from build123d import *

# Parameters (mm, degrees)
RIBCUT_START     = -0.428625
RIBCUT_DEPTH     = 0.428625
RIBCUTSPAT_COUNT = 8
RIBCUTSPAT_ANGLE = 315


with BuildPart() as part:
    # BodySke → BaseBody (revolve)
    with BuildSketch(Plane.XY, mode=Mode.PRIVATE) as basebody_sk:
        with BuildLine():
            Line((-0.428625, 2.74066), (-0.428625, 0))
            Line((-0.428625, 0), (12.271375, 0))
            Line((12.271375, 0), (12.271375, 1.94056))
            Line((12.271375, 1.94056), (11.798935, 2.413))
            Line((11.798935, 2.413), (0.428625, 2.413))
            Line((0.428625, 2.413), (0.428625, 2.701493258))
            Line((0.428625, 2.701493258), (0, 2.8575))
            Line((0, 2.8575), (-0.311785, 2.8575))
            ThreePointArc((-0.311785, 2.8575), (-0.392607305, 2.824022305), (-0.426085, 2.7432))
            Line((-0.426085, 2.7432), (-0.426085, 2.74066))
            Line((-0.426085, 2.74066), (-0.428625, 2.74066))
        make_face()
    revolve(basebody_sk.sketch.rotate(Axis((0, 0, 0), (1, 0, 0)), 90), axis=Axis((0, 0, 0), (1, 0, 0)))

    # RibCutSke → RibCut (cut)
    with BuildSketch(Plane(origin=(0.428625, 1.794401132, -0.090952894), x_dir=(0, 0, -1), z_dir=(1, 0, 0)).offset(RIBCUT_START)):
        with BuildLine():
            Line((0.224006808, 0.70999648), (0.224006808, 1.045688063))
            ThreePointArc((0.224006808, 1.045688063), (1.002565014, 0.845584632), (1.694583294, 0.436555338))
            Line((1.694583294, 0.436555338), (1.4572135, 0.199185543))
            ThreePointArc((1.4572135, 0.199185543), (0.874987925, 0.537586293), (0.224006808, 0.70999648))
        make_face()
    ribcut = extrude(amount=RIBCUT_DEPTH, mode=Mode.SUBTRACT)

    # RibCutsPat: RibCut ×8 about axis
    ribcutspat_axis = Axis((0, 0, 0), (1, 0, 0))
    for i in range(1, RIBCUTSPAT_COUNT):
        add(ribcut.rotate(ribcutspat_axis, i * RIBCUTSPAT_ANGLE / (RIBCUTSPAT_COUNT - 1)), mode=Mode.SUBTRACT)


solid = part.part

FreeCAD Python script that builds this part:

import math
import FreeCAD as App
import Part
import Sketcher
from FreeCAD import Vector
Q = App.Units.Quantity

doc = App.newDocument("Part")
body = doc.addObject("PartDesign::Body", "Body")

# Sketch on XY plane
sketch1 = body.newObject("Sketcher::SketchObject", "Sketch")
sketch1.AttachmentSupport = (doc.getObject("XY_Plane"), [""])
sketch1.MapMode = "FlatFace"
sketch1.addGeometry(Part.LineSegment(Vector(-0.428625, 2.74066, 0), Vector(-0.428625, 0, 0)), False)
sketch1.addGeometry(Part.LineSegment(Vector(-0.428625, 0, 0), Vector(12.271375, 0, 0)), False)
sketch1.addGeometry(Part.LineSegment(Vector(12.271375, 0, 0), Vector(12.271375, 1.94056, 0)), False)
sketch1.addGeometry(Part.LineSegment(Vector(12.271375, 1.94056, 0), Vector(11.798935, 2.413, 0)), False)
sketch1.addGeometry(Part.LineSegment(Vector(11.798935, 2.413, 0), Vector(0.428625, 2.413, 0)), False)
sketch1.addGeometry(Part.LineSegment(Vector(0.428625, 2.413, 0), Vector(0.428625, 2.701493, 0)), False)
sketch1.addGeometry(Part.LineSegment(Vector(0.428625, 2.701493, 0), Vector(0, 2.8575, 0)), False)
sketch1.addGeometry(Part.LineSegment(Vector(0, 2.8575, 0), Vector(-0.311785, 2.8575, 0)), False)
sketch1.addGeometry(Part.ArcOfCircle(Part.Circle(Vector(-0.311785, 2.7432, 0), Vector(0, 0, 1), 0.1143), math.radians(90), math.radians(180)), False)
sketch1.addGeometry(Part.LineSegment(Vector(-0.426085, 2.7432, 0), Vector(-0.426085, 2.74066, 0)), False)
sketch1.addGeometry(Part.LineSegment(Vector(-0.426085, 2.74066, 0), Vector(-0.428625, 2.74066, 0)), False)
sketch1.addConstraint(Sketcher.Constraint("Coincident", 0, 2, 1, 1))
sketch1.addConstraint(Sketcher.Constraint("Coincident", 1, 2, 2, 1))
sketch1.addConstraint(Sketcher.Constraint("Coincident", 2, 2, 3, 1))
sketch1.addConstraint(Sketcher.Constraint("Coincident", 3, 2, 4, 1))
sketch1.addConstraint(Sketcher.Constraint("Coincident", 4, 2, 5, 1))
sketch1.addConstraint(Sketcher.Constraint("Coincident", 5, 2, 6, 1))
sketch1.addConstraint(Sketcher.Constraint("Coincident", 6, 2, 7, 1))
sketch1.addConstraint(Sketcher.Constraint("Tangent", 7, 2, 8, 1))
sketch1.addConstraint(Sketcher.Constraint("Tangent", 8, 2, 9, 1))
sketch1.addConstraint(Sketcher.Constraint("Coincident", 9, 2, 10, 1))
sketch1.addConstraint(Sketcher.Constraint("Coincident", 10, 2, 0, 1))
sketch1.addConstraint(Sketcher.Constraint("Vertical", 0))
sketch1.addConstraint(Sketcher.Constraint("Horizontal", 1))
sketch1.addConstraint(Sketcher.Constraint("Vertical", 2))
sketch1.addConstraint(Sketcher.Constraint("Horizontal", 4))
sketch1.addConstraint(Sketcher.Constraint("Vertical", 5))
sketch1.addConstraint(Sketcher.Constraint("Horizontal", 7))
sketch1.addConstraint(Sketcher.Constraint("Horizontal", 10))
sketch1.addConstraint(Sketcher.Constraint("PointOnObject", 0, 2, -1))
sketch1.addConstraint(Sketcher.Constraint("PointOnObject", 6, 2, -2))
sketch1.addConstraint(Sketcher.Constraint("Equal", 10, 9))
sketch1.addConstraint(Sketcher.Constraint("DistanceX", 1, 1, 1, 2, Q("0.5 in")))
sketch1.addConstraint(Sketcher.Constraint("Angle", 3, Q("135 deg")))
sketch1.addConstraint(Sketcher.Constraint("Angle", 6, Q("160 deg")))
sketch1.addConstraint(Sketcher.Constraint("Radius", 8, Q("0.0045 in")))
sketch1.addConstraint(Sketcher.Constraint("DistanceX", 10, 2, 10, 1, Q("0.0001 in")))
sketch1.addConstraint(Sketcher.Constraint("DistanceY", 0, 2, 0, 1, Q("0.1079 in")))
sketch1.addConstraint(Sketcher.Constraint("DistanceY", 2, 1, 2, 2, Q("0.0764 in")))
sketch1.addConstraint(Sketcher.Constraint("DistanceY", -1, 1, 8, 3, Q("0.108 in")))
sketch1.addConstraint(Sketcher.Constraint("DistanceY", -1, 1, 3, 2, Q("0.095 in")))
sketch1.addConstraint(Sketcher.Constraint("DistanceX", 4, 2, 4, 1, 11.37031))
sketch1.addConstraint(Sketcher.Constraint("DistanceX", 7, 2, 7, 1, 0.311785))
revolution = body.newObject("PartDesign::Revolution", "Revolution")
revolution.Profile = sketch1
revolution.ReferenceAxis = (sketch1, ["H_Axis"])
revolution.Angle = 360

# Sketch on YZ plane
sketch2 = body.newObject("Sketcher::SketchObject", "Sketch001")
sketch2.AttachmentSupport = (doc.getObject("YZ_Plane"), [""])
sketch2.MapMode = "FlatFace"
sketch2.addGeometry(Part.LineSegment(Vector(2.840089, -0.31496, 0), Vector(2.504398, -0.31496, 0)), False)
sketch2.addGeometry(Part.ArcOfCircle(Part.Circle(Vector(0, 0, 0), Vector(0, 0, 1), 2.524125), math.radians(-37.831963), math.radians(-7.168037)), False)
sketch2.addGeometry(Part.LineSegment(Vector(1.993587, -1.548166, 0), Vector(2.230956, -1.785536, 0)), False)
sketch2.addGeometry(Part.ArcOfCircle(Part.Circle(Vector(0, 0, 0), Vector(0, 0, 1), 2.8575), math.radians(-38.67188), math.radians(-6.32812)), False)
sketch2.addConstraint(Sketcher.Constraint("Coincident", 0, 2, 1, 2))
sketch2.addConstraint(Sketcher.Constraint("Coincident", 1, 1, 2, 1))
sketch2.addConstraint(Sketcher.Constraint("Coincident", 2, 2, 3, 1))
sketch2.addConstraint(Sketcher.Constraint("Coincident", 3, 2, 0, 1))
sketch2.addConstraint(Sketcher.Constraint("Horizontal", 0))
sketch2.addConstraint(Sketcher.Constraint("Coincident", 1, 3, -1, 1))
sketch2.addConstraint(Sketcher.Constraint("Coincident", 3, 3, -1, 1))
sketch2.addConstraint(Sketcher.Constraint("Radius", 3, Q("0.1125 in")))
sketch2.addConstraint(Sketcher.Constraint("DistanceY", 0, 2, -1, 1, Q("0.0124 in")))
sketch2.addConstraint(Sketcher.Constraint("Radius", 1, 2.524125))
sketch2.addConstraint(Sketcher.Constraint("Distance", 2, 0.335692))
sketch2.addConstraint(Sketcher.Constraint("DistanceX", 1, 1, 0, 2, 0.510811))
pocket1 = body.newObject("PartDesign::Pocket", "Pocket")
pocket1.Profile = sketch2
pocket1.Length = 0.428625
pocket1.Reversed = True
doc.recompute()

polarpattern = body.newObject("PartDesign::PolarPattern", "PolarPattern")
polarpattern.Originals = [pocket1]
polarpattern.Axis = (doc.getObject("X_Axis"), [""])
polarpattern.Angle = 360
polarpattern.Occurrences = 8
body.Tip = polarpattern

doc.recompute()
